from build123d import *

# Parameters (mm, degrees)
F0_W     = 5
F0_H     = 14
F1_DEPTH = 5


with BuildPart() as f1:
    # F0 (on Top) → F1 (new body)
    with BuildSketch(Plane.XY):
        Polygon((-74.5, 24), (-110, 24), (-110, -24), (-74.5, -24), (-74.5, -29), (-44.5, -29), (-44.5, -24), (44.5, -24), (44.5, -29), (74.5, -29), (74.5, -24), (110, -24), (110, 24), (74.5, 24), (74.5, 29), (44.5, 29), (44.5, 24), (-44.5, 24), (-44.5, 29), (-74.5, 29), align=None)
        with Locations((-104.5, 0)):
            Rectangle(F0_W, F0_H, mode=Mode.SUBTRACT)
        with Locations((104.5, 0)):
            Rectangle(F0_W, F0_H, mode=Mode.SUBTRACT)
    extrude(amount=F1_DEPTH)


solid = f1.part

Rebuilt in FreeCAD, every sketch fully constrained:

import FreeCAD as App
import Part
import Sketcher
Q = App.Units.Quantity

doc = App.newDocument("Part")
body = doc.addObject("PartDesign::Body", "Body")

# Sketch on XY plane
sketch1 = body.newObject("Sketcher::SketchObject", "Sketch")
sketch1.AttachmentSupport = (doc.getObject("XY_Plane"), [""])
sketch1.MapMode = "FlatFace"
sketch1.addGeometry([
    Part.LineSegment(App.Vector(-74.5, 24, 0), App.Vector(-110, 24, 0)),  # 0
    Part.LineSegment(App.Vector(-110, 24, 0), App.Vector(-110, -24, 0)),  # 1
    Part.LineSegment(App.Vector(-110, -24, 0), App.Vector(-74.5, -24, 0)),  # 2
    Part.LineSegment(App.Vector(-74.5, -24, 0), App.Vector(-74.5, -29, 0)),  # 3
    Part.LineSegment(App.Vector(-74.5, -29, 0), App.Vector(-44.5, -29, 0)),  # 4
    Part.LineSegment(App.Vector(-44.5, -29, 0), App.Vector(-44.5, -24, 0)),  # 5
    Part.LineSegment(App.Vector(-44.5, -24, 0), App.Vector(44.5, -24, 0)),  # 6
    Part.LineSegment(App.Vector(44.5, -24, 0), App.Vector(44.5, -29, 0)),  # 7
    Part.LineSegment(App.Vector(44.5, -29, 0), App.Vector(74.5, -29, 0)),  # 8
    Part.LineSegment(App.Vector(74.5, -29, 0), App.Vector(74.5, -24, 0)),  # 9
    Part.LineSegment(App.Vector(74.5, -24, 0), App.Vector(110, -24, 0)),  # 10
    Part.LineSegment(App.Vector(110, -24, 0), App.Vector(110, 24, 0)),  # 11
    Part.LineSegment(App.Vector(110, 24, 0), App.Vector(74.5, 24, 0)),  # 12
    Part.LineSegment(App.Vector(74.5, 24, 0), App.Vector(74.5, 29, 0)),  # 13
    Part.LineSegment(App.Vector(74.5, 29, 0), App.Vector(44.5, 29, 0)),  # 14
    Part.LineSegment(App.Vector(44.5, 29, 0), App.Vector(44.5, 24, 0)),  # 15
    Part.LineSegment(App.Vector(44.5, 24, 0), App.Vector(-44.5, 24, 0)),  # 16
    Part.LineSegment(App.Vector(-44.5, 24, 0), App.Vector(-44.5, 29, 0)),  # 17
    Part.LineSegment(App.Vector(-44.5, 29, 0), App.Vector(-74.5, 29, 0)),  # 18
    Part.LineSegment(App.Vector(-74.5, 29, 0), App.Vector(-74.5, 24, 0)),  # 19
    Part.LineSegment(App.Vector(-102, -7, 0), App.Vector(-107, -7, 0)),  # 20
    Part.LineSegment(App.Vector(-107, -7, 0), App.Vector(-107, 7, 0)),  # 21
    Part.LineSegment(App.Vector(-107, 7, 0), App.Vector(-102, 7, 0)),  # 22
    Part.LineSegment(App.Vector(-102, 7, 0), App.Vector(-102, -7, 0)),  # 23
    Part.LineSegment(App.Vector(107, -7, 0), App.Vector(102, -7, 0)),  # 24
    Part.LineSegment(App.Vector(102, -7, 0), App.Vector(102, 7, 0)),  # 25
    Part.LineSegment(App.Vector(102, 7, 0), App.Vector(107, 7, 0)),  # 26
    Part.LineSegment(App.Vector(107, 7, 0), App.Vector(107, -7, 0)),  # 27
], False)
sketch1.addConstraint([
    Sketcher.Constraint("Coincident", 0, 2, 1, 1),
    Sketcher.Constraint("Coincident", 1, 2, 2, 1),
    Sketcher.Constraint("Coincident", 2, 2, 3, 1),
    Sketcher.Constraint("Coincident", 3, 2, 4, 1),
    Sketcher.Constraint("Coincident", 4, 2, 5, 1),
    Sketcher.Constraint("Coincident", 5, 2, 6, 1),
    Sketcher.Constraint("Coincident", 6, 2, 7, 1),
    Sketcher.Constraint("Coincident", 7, 2, 8, 1),
    Sketcher.Constraint("Coincident", 8, 2, 9, 1),
    Sketcher.Constraint("Coincident", 9, 2, 10, 1),
    Sketcher.Constraint("Coincident", 10, 2, 11, 1),
    Sketcher.Constraint("Coincident", 11, 2, 12, 1),
    Sketcher.Constraint("Coincident", 12, 2, 13, 1),
    Sketcher.Constraint("Coincident", 13, 2, 14, 1),
    Sketcher.Constraint("Coincident", 14, 2, 15, 1),
    Sketcher.Constraint("Coincident", 15, 2, 16, 1),
    Sketcher.Constraint("Coincident", 16, 2, 17, 1),
    Sketcher.Constraint("Coincident", 17, 2, 18, 1),
    Sketcher.Constraint("Coincident", 18, 2, 19, 1),
    Sketcher.Constraint("Coincident", 19, 2, 0, 1),
    Sketcher.Constraint("Coincident", 20, 2, 21, 1),
    Sketcher.Constraint("Coincident", 21, 2, 22, 1),
    Sketcher.Constraint("Coincident", 22, 2, 23, 1),
    Sketcher.Constraint("Coincident", 23, 2, 20, 1),
    Sketcher.Constraint("Coincident", 24, 2, 25, 1),
    Sketcher.Constraint("Coincident", 25, 2, 26, 1),
    Sketcher.Constraint("Coincident", 26, 2, 27, 1),
    Sketcher.Constraint("Coincident", 27, 2, 24, 1),
    Sketcher.Constraint("Horizontal", 0),
    Sketcher.Constraint("Vertical", 1),
    Sketcher.Constraint("Horizontal", 2),
    Sketcher.Constraint("Vertical", 3),
    Sketcher.Constraint("Horizontal", 4),
    Sketcher.Constraint("Vertical", 5),
    Sketcher.Constraint("Horizontal", 6),
    Sketcher.Constraint("Vertical", 7),
    Sketcher.Constraint("Horizontal", 8),
    Sketcher.Constraint("Vertical", 9),
    Sketcher.Constraint("Horizontal", 10),
    Sketcher.Constraint("Vertical", 11),
    Sketcher.Constraint("Horizontal", 12),
    Sketcher.Constraint("Vertical", 13),
    Sketcher.Constraint("Horizontal", 14),
    Sketcher.Constraint("Vertical", 15),
    Sketcher.Constraint("Horizontal", 16),
    Sketcher.Constraint("Vertical", 17),
    Sketcher.Constraint("Horizontal", 18),
    Sketcher.Constraint("Vertical", 19),
    Sketcher.Constraint("Horizontal", 20),
    Sketcher.Constraint("Vertical", 21),
    Sketcher.Constraint("Horizontal", 22),
    Sketcher.Constraint("Vertical", 23),
    Sketcher.Constraint("Horizontal", 24),
    Sketcher.Constraint("Vertical", 25),
    Sketcher.Constraint("Horizontal", 26),
    Sketcher.Constraint("Vertical", 27),
    Sketcher.Constraint("Symmetric", 0, 2, 10, 2, -1, 1),
    Sketcher.Constraint("Symmetric", 2, 2, 12, 2, -1, 1),
    Sketcher.Constraint("Symmetric", 4, 2, 14, 2, -1, 1),
    Sketcher.Constraint("Symmetric", 6, 2, 16, 2, -1, 1),
    Sketcher.Constraint("Symmetric", 8, 2, 18, 2, -1, 1),
    Sketcher.Constraint("Symmetric", 22, 2, 24, 2, -1, 1),
    Sketcher.Constraint("Symmetric", 20, 2, 26, 2, -1, 1),
    Sketcher.Constraint("Symmetric", 4, 2, 7, 2, -2),
    Sketcher.Constraint("Symmetric", 2, 2, 9, 2, -2),
    Sketcher.Constraint("Horizontal", 2, 2, 5, 2),
    Sketcher.Constraint("Horizontal", 23, 2, 24, 2),
    Sketcher.Constraint("Equal", 26, 3),
    Sketcher.Constraint("DistanceX", 4, 1, 4, 2, Q("30 mm")),
    Sketcher.Constraint("DistanceX", 6, 1, 6, 2, Q("89 mm")),
    Sketcher.Constraint("DistanceX", 20, 2, 20, 1, Q("5 mm")),
    Sketcher.Constraint("DistanceY", 1, 2, 1, 1, Q("48 mm")),
    Sketcher.Constraint("DistanceY", 21, 1, 21, 2, Q("14 mm")),
    Sketcher.Constraint("DistanceX", 0, 2, 0, 1, Q("35.5 mm")),
    Sketcher.Constraint("DistanceX", 20, 2, -1, 1, Q("107 mm")),
])
pad1 = body.newObject("PartDesign::Pad", "Pad")
pad1.Profile = sketch1
pad1.Length = 5

doc.recompute()
